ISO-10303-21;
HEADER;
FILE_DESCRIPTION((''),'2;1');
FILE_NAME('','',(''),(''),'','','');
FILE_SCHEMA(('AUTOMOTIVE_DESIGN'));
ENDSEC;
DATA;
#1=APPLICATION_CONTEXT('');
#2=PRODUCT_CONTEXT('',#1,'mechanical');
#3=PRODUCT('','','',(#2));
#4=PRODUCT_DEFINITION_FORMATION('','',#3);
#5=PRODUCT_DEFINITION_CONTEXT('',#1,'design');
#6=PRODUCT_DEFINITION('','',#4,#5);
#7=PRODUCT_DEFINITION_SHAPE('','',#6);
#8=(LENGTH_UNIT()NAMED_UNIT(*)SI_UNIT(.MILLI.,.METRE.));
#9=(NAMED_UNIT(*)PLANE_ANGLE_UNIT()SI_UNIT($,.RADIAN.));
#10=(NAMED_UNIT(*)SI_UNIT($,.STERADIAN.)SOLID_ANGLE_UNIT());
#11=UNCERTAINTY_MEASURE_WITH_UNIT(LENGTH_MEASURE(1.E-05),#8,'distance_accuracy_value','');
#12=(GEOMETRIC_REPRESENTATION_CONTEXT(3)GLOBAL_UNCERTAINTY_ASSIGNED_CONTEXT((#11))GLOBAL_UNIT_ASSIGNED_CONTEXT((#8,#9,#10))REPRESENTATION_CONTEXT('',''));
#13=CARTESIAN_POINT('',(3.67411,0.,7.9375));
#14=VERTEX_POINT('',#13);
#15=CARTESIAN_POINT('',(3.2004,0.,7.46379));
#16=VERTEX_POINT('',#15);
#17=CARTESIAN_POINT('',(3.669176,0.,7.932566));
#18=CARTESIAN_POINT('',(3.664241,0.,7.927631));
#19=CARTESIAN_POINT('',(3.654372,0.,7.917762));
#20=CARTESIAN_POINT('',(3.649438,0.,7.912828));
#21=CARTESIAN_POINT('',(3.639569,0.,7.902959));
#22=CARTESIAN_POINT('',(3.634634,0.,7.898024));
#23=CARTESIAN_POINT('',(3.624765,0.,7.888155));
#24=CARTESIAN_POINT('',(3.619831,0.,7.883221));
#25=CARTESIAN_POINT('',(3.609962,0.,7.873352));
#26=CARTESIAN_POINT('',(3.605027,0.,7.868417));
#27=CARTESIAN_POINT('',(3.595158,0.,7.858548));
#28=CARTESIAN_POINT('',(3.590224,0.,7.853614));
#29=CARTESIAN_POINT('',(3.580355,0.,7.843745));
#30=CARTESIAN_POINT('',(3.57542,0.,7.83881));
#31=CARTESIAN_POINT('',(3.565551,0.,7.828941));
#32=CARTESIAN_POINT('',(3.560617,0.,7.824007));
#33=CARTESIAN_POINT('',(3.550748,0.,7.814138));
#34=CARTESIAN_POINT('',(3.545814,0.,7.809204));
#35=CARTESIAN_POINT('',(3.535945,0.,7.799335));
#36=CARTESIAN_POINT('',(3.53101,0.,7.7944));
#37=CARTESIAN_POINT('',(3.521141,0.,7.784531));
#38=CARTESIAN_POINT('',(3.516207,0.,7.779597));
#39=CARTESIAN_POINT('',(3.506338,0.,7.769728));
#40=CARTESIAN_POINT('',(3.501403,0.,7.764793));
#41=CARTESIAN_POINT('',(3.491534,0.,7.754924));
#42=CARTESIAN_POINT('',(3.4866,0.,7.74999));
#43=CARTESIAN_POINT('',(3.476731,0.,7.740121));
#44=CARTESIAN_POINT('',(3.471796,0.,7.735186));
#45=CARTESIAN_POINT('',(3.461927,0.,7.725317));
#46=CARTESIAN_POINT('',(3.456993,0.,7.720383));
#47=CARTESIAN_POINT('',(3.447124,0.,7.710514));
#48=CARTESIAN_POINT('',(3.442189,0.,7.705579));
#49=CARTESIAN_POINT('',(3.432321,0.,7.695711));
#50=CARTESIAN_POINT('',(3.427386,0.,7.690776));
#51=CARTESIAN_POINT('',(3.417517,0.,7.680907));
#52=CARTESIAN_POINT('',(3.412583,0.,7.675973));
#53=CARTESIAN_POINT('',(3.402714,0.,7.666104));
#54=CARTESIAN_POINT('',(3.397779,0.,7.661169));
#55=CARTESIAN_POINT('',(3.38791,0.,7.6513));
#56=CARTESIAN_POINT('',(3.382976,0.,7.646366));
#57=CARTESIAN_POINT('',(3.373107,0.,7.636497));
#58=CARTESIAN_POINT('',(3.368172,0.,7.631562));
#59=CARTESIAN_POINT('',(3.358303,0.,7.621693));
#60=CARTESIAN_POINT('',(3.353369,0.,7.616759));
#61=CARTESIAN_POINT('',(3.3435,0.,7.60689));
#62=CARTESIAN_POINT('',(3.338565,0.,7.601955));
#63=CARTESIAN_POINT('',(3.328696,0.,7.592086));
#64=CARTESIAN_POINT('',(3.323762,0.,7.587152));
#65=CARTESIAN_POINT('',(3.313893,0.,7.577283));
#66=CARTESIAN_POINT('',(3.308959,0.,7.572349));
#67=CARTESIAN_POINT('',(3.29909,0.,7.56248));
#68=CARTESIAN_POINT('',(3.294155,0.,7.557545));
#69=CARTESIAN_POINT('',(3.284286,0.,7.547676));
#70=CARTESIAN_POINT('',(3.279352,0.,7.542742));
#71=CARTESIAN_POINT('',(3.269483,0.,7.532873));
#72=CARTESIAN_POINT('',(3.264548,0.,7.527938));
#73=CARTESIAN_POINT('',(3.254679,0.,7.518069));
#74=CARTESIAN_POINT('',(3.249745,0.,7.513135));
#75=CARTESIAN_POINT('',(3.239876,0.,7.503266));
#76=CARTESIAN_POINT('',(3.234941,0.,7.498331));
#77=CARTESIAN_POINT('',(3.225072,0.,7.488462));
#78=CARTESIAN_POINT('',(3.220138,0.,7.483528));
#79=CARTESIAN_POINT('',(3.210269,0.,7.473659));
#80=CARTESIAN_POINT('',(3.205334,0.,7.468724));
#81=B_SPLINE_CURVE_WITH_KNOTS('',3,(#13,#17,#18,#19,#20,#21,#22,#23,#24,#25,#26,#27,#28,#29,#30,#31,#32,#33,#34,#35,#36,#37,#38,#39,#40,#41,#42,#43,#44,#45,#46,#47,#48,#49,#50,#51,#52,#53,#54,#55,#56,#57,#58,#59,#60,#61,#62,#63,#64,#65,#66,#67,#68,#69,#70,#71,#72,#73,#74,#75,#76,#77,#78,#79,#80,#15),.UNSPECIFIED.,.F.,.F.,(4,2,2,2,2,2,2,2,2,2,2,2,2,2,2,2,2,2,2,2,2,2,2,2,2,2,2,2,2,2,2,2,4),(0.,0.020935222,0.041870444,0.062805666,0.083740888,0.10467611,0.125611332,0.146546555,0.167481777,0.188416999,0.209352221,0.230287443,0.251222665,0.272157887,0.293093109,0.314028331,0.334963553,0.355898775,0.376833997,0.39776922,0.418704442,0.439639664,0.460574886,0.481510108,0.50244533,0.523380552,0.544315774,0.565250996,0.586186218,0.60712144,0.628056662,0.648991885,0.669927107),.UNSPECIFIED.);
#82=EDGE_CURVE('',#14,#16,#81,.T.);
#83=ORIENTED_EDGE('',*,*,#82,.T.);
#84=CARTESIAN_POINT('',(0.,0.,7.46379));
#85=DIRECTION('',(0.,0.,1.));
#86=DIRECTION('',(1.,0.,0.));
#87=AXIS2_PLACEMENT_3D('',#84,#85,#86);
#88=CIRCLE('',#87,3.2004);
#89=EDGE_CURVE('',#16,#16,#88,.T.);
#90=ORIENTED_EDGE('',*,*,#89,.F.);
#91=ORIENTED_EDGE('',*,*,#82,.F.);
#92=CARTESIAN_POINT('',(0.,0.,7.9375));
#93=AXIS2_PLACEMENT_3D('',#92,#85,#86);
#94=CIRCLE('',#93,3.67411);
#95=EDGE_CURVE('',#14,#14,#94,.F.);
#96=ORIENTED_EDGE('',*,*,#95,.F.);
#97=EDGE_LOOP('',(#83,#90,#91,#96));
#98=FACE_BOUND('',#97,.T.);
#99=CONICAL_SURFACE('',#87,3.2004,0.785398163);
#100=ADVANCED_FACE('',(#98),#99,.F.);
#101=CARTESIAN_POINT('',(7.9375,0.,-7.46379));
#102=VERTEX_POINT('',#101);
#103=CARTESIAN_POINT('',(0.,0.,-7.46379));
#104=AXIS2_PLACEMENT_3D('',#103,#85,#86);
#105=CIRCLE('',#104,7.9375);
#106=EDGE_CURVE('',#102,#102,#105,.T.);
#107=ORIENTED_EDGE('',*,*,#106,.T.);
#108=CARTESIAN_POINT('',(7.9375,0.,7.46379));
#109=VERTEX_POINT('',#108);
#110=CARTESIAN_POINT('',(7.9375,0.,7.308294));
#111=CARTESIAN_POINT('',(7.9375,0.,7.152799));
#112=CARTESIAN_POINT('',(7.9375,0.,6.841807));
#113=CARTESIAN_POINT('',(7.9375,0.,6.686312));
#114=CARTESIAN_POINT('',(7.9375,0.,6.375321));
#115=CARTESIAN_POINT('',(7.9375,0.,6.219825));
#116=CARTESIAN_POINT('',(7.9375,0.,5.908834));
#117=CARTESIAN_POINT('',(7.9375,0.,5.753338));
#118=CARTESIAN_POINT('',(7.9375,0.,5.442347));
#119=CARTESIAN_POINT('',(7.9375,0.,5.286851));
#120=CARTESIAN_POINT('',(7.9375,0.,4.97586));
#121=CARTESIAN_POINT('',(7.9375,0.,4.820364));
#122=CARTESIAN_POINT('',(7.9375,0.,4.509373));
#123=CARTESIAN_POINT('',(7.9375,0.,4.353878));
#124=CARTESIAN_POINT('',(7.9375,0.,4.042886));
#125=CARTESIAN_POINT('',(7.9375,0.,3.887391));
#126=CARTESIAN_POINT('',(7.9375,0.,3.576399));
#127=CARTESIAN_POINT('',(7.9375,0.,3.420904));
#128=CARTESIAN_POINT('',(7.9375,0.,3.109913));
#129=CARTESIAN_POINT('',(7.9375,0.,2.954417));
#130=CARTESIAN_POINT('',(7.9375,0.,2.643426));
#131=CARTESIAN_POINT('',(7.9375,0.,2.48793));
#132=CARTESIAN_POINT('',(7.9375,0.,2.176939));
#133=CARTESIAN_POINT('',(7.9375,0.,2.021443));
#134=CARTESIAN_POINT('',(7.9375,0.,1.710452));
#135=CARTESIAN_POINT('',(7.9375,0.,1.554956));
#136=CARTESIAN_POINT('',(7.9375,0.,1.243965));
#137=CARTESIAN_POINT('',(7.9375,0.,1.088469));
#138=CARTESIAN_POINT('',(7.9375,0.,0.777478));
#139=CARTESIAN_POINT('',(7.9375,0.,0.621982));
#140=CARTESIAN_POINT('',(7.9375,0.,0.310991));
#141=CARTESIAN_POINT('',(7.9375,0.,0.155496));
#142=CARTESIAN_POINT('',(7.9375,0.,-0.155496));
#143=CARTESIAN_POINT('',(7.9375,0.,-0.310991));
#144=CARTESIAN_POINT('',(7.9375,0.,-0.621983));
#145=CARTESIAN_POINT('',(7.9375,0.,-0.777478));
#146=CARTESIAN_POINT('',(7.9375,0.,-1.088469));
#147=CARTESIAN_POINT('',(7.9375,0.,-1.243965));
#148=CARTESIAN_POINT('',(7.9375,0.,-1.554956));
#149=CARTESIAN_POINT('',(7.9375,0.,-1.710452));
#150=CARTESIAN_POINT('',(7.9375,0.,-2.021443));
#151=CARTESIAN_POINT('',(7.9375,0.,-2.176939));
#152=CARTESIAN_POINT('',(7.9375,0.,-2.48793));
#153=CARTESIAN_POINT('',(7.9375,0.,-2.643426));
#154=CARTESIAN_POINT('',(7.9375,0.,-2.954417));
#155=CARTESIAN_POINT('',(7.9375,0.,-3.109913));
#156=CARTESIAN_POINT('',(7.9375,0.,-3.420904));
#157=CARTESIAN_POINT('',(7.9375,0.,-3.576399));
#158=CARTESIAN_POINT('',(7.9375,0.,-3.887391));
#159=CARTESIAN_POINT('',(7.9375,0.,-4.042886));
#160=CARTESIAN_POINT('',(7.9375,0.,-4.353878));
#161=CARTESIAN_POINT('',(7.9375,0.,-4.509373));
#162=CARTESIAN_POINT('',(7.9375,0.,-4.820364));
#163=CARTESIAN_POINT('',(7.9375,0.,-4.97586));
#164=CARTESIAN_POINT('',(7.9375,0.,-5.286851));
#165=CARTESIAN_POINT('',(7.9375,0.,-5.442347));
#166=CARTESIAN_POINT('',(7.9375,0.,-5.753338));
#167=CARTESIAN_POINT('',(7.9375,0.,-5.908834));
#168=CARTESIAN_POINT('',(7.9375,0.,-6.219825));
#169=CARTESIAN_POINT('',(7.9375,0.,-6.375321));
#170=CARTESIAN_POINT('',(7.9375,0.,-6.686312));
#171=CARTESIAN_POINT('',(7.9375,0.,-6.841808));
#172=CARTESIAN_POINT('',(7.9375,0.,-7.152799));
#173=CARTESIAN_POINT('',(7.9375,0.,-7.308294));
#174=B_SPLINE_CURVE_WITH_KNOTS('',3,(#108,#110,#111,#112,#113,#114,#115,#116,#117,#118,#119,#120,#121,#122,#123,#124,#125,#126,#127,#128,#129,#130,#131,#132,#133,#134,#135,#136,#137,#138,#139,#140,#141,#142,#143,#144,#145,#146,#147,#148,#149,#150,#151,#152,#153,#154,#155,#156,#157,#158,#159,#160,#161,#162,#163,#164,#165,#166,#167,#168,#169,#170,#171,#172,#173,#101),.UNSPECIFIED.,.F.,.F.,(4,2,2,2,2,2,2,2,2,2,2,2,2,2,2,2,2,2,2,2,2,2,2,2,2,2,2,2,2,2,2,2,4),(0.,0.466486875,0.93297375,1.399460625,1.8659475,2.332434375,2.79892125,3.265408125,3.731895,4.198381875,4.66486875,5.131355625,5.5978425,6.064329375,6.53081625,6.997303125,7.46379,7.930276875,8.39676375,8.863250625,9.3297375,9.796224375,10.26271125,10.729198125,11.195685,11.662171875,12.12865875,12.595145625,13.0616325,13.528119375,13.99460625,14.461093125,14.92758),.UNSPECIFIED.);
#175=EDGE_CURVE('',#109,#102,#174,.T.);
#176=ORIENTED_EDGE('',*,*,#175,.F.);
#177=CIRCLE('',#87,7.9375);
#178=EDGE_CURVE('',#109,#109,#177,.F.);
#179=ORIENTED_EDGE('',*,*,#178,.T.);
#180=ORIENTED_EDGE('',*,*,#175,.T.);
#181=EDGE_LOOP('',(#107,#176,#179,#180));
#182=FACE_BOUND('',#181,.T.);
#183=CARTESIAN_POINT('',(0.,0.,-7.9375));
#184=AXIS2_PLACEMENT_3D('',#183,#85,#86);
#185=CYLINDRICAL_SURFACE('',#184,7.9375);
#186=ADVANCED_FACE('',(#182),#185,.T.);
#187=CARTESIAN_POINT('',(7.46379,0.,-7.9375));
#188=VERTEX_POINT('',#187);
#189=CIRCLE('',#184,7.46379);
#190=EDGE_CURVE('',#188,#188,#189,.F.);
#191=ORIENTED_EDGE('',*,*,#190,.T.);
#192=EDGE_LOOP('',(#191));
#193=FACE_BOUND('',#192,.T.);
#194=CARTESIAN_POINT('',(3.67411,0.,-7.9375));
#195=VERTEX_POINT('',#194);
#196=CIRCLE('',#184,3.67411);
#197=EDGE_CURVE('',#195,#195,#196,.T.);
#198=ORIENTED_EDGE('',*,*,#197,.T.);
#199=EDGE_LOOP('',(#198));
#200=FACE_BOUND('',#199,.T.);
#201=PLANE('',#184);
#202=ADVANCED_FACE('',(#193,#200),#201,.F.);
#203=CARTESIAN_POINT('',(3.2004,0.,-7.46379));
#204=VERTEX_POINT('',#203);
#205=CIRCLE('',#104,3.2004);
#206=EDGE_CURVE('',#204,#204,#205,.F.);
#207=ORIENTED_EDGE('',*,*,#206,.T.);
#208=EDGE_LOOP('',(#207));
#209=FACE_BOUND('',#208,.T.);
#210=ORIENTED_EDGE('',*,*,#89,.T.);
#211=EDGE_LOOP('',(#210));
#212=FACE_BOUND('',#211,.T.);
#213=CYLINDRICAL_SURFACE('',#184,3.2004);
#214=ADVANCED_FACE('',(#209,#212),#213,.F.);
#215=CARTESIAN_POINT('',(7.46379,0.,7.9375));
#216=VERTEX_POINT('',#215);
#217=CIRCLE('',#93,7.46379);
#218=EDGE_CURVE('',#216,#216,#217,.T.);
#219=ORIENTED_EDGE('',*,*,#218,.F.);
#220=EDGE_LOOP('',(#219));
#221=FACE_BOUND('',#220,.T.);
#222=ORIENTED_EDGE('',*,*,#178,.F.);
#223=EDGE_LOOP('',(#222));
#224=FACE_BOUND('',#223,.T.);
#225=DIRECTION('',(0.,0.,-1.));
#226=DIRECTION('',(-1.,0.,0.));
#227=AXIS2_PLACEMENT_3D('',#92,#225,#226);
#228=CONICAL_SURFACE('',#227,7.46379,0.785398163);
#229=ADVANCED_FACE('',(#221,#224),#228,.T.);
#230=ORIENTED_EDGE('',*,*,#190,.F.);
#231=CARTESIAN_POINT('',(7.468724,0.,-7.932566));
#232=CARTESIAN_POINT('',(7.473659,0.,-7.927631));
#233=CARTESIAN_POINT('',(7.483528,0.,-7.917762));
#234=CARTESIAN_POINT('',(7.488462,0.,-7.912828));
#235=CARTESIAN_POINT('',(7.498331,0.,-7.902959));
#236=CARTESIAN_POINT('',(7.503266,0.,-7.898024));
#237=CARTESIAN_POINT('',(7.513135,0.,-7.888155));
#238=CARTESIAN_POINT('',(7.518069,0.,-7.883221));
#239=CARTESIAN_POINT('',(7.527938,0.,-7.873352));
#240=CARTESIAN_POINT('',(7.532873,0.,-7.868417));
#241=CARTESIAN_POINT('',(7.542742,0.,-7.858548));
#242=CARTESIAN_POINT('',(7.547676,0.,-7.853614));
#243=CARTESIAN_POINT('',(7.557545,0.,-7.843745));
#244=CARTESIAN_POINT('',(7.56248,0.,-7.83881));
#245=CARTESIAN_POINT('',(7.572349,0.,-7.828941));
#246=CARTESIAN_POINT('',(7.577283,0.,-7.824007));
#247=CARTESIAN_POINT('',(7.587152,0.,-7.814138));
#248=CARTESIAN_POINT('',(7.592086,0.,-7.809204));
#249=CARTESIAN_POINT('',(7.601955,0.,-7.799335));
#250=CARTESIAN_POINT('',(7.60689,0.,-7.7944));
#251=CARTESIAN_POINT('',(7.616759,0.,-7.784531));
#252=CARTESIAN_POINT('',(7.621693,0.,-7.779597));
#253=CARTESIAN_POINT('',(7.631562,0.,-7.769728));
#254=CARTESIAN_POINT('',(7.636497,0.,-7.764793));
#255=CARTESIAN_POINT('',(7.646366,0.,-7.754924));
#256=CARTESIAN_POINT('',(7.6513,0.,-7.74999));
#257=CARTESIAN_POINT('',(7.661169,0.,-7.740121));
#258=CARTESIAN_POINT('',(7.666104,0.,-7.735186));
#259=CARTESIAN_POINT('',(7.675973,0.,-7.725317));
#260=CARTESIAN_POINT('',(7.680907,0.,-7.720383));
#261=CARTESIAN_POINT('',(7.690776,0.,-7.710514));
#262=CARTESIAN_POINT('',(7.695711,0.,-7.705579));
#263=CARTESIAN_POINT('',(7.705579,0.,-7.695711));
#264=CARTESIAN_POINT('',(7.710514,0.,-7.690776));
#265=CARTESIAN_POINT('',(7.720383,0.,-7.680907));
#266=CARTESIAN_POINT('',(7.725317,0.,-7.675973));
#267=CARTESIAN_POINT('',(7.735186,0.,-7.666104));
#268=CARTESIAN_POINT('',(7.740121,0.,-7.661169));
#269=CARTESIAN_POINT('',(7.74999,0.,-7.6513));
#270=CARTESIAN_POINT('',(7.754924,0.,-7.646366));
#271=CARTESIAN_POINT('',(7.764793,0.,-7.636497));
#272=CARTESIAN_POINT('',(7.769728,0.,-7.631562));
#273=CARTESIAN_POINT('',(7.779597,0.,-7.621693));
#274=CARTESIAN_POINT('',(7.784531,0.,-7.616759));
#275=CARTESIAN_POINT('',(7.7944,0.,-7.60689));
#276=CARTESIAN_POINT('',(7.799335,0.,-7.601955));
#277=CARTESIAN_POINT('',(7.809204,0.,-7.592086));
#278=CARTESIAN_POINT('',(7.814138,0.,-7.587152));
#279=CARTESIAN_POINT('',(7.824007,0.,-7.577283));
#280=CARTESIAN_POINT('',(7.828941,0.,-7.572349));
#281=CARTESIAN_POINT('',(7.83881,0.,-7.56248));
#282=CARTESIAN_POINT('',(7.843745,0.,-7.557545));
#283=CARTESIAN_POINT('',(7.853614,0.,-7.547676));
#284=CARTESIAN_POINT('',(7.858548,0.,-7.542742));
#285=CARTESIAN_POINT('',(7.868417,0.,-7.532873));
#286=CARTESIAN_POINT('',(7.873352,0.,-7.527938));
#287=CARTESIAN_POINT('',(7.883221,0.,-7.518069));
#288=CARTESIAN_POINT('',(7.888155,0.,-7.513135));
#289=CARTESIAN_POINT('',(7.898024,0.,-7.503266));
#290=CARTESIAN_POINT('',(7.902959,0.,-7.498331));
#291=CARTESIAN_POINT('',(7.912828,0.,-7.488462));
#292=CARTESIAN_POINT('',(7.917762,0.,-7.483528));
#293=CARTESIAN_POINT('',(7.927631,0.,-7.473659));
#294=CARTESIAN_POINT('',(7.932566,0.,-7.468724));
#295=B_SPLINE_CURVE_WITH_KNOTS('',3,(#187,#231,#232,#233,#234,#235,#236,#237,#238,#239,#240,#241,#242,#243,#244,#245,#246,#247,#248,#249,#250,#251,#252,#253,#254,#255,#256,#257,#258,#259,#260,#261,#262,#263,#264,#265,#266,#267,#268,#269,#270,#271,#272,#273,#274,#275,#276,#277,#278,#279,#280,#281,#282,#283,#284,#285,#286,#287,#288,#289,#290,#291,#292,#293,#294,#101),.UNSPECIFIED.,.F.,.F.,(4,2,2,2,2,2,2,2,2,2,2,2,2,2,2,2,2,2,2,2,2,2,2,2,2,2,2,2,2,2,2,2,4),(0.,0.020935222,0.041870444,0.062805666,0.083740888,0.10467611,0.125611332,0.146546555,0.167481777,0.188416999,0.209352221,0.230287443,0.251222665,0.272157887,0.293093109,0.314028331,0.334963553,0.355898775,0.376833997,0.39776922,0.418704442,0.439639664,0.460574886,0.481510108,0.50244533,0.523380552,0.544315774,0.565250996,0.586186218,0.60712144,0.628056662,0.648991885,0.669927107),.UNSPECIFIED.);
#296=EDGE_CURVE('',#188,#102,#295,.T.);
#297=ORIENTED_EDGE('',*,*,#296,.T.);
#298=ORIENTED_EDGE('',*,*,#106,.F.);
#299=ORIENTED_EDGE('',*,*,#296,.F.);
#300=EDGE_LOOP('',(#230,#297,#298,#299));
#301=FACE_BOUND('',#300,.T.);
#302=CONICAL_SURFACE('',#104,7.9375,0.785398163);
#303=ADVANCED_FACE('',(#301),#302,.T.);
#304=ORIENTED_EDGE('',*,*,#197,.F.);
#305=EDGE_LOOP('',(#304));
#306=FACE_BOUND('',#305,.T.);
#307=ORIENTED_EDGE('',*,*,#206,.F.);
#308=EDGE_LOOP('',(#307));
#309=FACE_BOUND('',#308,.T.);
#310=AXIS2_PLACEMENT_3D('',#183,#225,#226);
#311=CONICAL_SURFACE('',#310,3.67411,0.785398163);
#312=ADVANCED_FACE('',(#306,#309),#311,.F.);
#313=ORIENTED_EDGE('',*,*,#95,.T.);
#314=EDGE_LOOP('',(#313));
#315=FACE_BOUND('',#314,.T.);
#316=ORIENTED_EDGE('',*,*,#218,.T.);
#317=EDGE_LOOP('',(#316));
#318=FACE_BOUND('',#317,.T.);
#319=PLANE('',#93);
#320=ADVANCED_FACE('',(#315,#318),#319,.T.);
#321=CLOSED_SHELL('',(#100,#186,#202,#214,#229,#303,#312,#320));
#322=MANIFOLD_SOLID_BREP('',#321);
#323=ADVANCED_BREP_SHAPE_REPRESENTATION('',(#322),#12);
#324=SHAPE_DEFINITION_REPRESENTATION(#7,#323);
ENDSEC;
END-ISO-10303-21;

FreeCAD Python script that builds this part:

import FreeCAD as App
import Part
import Sketcher

V = App.Vector
Q = App.Units.Quantity


def edges_at(feature, points):
    """Names of the edges that pass closest to the given points."""
    edges = feature.Shape.Edges
    near = lambda p: min(range(len(edges)), key=lambda i: edges[i].distToShape(Part.Vertex(*p))[0])
    return sorted({f"Edge{near(p) + 1}" for p in points})

doc = App.newDocument("Part")
body = doc.addObject("PartDesign::Body", "Body")

# Sketch on XY plane
sketch1 = body.newObject("Sketcher::SketchObject", "Sketch")
sketch1.AttachmentSupport = (doc.getObject("XY_Plane"), [""])
sketch1.MapMode = "FlatFace"
sketch1.addGeometry([
    Part.Circle(V(0, 0, 0), V(0, 0, 1), 7.9),
    Part.Circle(V(0, 0, 0), V(0, 0, 1), 3.2),
], False)
sketch1.addConstraint([
    Sketcher.Constraint("Coincident", 0, 3, -1, 1),
    Sketcher.Constraint("Coincident", 1, 3, -1, 1),
    Sketcher.Constraint("Diameter", 0, Q("0.625 in")),
    Sketcher.Constraint("Diameter", 1, Q("0.252 in")),
])
pad1 = body.newObject("PartDesign::Pad", "Pad")
pad1.Profile = sketch1
pad1.Type = "TwoLengths"
pad1.Length = Q("0.3125 in")
pad1.Length2 = Q("0.3125 in")
doc.recompute()

chamfer = body.newObject("PartDesign::Chamfer", "Chamfer")
chamfer.Base = (pad1, edges_at(pad1, [
    (-7.938, 0, -7.938),
    (-3.2, 0, -7.938),
    (-7.938, 0, 7.938),
    (-3.2, 0, 7.938),
]))
chamfer.Size = 0.47371

doc.recompute()
